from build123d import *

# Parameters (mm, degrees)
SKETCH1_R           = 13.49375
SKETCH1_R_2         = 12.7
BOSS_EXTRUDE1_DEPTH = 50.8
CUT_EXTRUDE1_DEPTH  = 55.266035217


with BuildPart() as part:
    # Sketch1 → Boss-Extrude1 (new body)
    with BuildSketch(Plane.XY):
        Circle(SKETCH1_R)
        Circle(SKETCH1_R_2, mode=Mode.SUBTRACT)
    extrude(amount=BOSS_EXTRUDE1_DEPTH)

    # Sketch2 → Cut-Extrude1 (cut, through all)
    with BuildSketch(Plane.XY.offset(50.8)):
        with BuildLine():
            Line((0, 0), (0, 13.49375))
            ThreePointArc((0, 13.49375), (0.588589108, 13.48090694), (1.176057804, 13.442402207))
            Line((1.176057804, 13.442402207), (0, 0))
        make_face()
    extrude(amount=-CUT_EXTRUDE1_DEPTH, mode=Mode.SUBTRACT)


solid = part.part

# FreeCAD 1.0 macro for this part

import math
import FreeCAD as App
import Part
import Sketcher
from FreeCAD import Vector
Q = App.Units.Quantity

doc = App.newDocument("Part")
params = doc.addObject("Spreadsheet::Sheet", "Params")
for row, (alias, value) in enumerate([
    ("sketch1_diameter", "1 in"),
    ("sketch1_diameter2", "1.0625 in"),
    ("pad1_length", "2 in"),
    ("sketch2_radius", "0.53125 in"),
], start=1):
    params.set(f"A{row}", alias)
    params.set(f"B{row}", "=" + value)
    params.setAlias(f"B{row}", alias)

body = doc.addObject("PartDesign::Body", "Body")

sketch1 = doc.addObject("Sketcher::SketchObject", "Sketch")
body.addObject(sketch1)
sketch1.AttachmentSupport = (doc.XY_Plane, [""])
sketch1.MapMode = "FlatFace"
sketch1.addGeometry([
    Part.Circle(Vector(0, 0, 0), Vector(0, 0, 1), 13),
    Part.Circle(Vector(0, 0, 0), Vector(0, 0, 1), 13),
], False)
sketch1.addConstraint([
    Sketcher.Constraint("Coincident", 0, 3, -1, 1),
    Sketcher.Constraint("Coincident", 1, 3, -1, 1),
    Sketcher.Constraint("Diameter", 1, Q("1 in")),
    Sketcher.Constraint("Diameter", 0, Q("1.0625 in")),
])
sketch1.setExpression("Constraints[2]", "Params.sketch1_diameter")
sketch1.setExpression("Constraints[3]", "Params.sketch1_diameter2")
pad1 = doc.addObject("PartDesign::Pad", "Pad")
body.addObject(pad1)
pad1.Profile = sketch1
pad1.setExpression("Length", "Params.pad1_length")

sketch2 = doc.addObject("Sketcher::SketchObject", "Sketch001")
body.addObject(sketch2)
sketch2.AttachmentSupport = (doc.XY_Plane, [""])
sketch2.MapMode = "FlatFace"
sketch2.AttachmentOffset = App.Placement(Vector(0, 0, 2 * 25.4), App.Rotation())
sketch2.addGeometry([
    Part.LineSegment(Vector(0, 13.5, 0), Vector(0, 0, 0)),
    Part.LineSegment(Vector(0, 0, 0), Vector(1.2, 13.4, 0)),
    Part.ArcOfCircle(Part.Circle(Vector(0, 0, 0), Vector(0, 0, 1), 13.5), math.radians(85), math.radians(90)),
], False)
sketch2.addConstraint([
    Sketcher.Constraint("Coincident", 0, 2, 1, 1),
    Sketcher.Constraint("Coincident", 1, 2, 2, 1),
    Sketcher.Constraint("Coincident", 2, 2, 0, 1),
    Sketcher.Constraint("Vertical", 0),
    Sketcher.Constraint("Coincident", 2, 3, -1, 1),
    Sketcher.Constraint("Coincident", 0, 2, -1, 1),
    Sketcher.Constraint("Angle", 1, Q("85 deg")),
    Sketcher.Constraint("Radius", 2, Q("0.53125 in")),
])
sketch2.setExpression("Constraints[7]", "Params.sketch2_radius")
pocket1 = doc.addObject("PartDesign::Pocket", "Pocket")
body.addObject(pocket1)
pocket1.Profile = sketch2
pocket1.Type = "ThroughAll"

doc.recompute()
